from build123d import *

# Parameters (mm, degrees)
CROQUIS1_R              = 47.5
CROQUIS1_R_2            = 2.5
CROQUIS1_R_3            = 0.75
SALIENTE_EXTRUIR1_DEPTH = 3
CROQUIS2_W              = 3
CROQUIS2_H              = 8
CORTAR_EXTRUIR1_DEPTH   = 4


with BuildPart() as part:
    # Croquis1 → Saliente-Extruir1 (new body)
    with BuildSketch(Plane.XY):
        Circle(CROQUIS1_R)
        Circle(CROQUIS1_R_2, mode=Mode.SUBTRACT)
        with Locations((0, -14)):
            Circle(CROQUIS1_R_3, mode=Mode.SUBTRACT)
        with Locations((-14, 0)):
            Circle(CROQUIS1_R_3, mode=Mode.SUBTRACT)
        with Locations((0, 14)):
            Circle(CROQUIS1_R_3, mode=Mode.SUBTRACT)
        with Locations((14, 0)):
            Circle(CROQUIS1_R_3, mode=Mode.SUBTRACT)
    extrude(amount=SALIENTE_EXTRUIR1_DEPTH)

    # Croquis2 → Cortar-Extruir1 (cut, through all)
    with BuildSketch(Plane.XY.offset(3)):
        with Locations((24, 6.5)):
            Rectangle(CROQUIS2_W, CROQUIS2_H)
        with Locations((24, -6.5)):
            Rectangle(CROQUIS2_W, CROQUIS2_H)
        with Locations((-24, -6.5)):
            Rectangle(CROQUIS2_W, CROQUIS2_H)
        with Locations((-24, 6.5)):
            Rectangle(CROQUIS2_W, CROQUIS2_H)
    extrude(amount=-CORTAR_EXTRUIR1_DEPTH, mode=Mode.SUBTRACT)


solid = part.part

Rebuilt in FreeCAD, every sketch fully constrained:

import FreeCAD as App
import Part
import Sketcher
Q = App.Units.Quantity


def add_polygon(sketch, points):
    """Adds a closed chain of lines whose ends are joined by coincident constraints."""
    first, n = sketch.GeometryCount, len(points)
    for a, b in zip(points, points[1:] + points[:1]):
        sketch.addGeometry(Part.LineSegment(App.Vector(*a, 0), App.Vector(*b, 0)), False)
    for i in range(n):
        sketch.addConstraint(Sketcher.Constraint("Coincident", first + i, 2, first + (i + 1) % n, 1))

doc = App.newDocument("Part")
body = doc.addObject("PartDesign::Body", "Body")

# Sketch on XY plane
sketch1 = body.newObject("Sketcher::SketchObject", "Sketch")
sketch1.AttachmentSupport = (doc.getObject("XY_Plane"), [""])
sketch1.MapMode = "FlatFace"
sketch1.addGeometry(Part.Circle(App.Vector(0, 0, 0), App.Vector(0, 0, 1), 47.5), False)
sketch1.addGeometry(Part.Circle(App.Vector(0, -14, 0), App.Vector(0, 0, 1), 0.75), False)
sketch1.addGeometry(Part.Circle(App.Vector(-14, 0, 0), App.Vector(0, 0, 1), 0.75), False)
sketch1.addGeometry(Part.Circle(App.Vector(0, 0, 0), App.Vector(0, 0, 1), 2.5), False)
sketch1.addGeometry(Part.Circle(App.Vector(14, 0, 0), App.Vector(0, 0, 1), 0.75), False)
sketch1.addGeometry(Part.Circle(App.Vector(0, 14, 0), App.Vector(0, 0, 1), 0.75), False)
sketch1.addConstraint(Sketcher.Constraint("Coincident", 0, 3, -1, 1))
sketch1.addConstraint(Sketcher.Constraint("Coincident", 3, 3, -1, 1))
sketch1.addConstraint(Sketcher.Constraint("Equal", 1, 2))
sketch1.addConstraint(Sketcher.Constraint("Equal", 2, 4))
sketch1.addConstraint(Sketcher.Constraint("Equal", 4, 5))
sketch1.addConstraint(Sketcher.Constraint("Symmetric", 2, 3, 4, 3, -1, 1))
sketch1.addConstraint(Sketcher.Constraint("Symmetric", 1, 3, 5, 3, -1, 1))
sketch1.addConstraint(Sketcher.Constraint("PointOnObject", 1, 3, -2))
sketch1.addConstraint(Sketcher.Constraint("PointOnObject", 2, 3, -1))
sketch1.addConstraint(Sketcher.Constraint("Diameter", 0, Q("95 mm")))
sketch1.addConstraint(Sketcher.Constraint("Diameter", 3, Q("5 mm")))
sketch1.addConstraint(Sketcher.Constraint("Diameter", 1, Q("1.5 mm")))
sketch1.addConstraint(Sketcher.Constraint("DistanceY", 1, 3, -1, 1, Q("14 mm")))
sketch1.addConstraint(Sketcher.Constraint("DistanceX", 2, 3, -1, 1, Q("14 mm")))
pad1 = body.newObject("PartDesign::Pad", "Pad")
pad1.Profile = sketch1
pad1.Length = 3

# Sketch on XY plane
sketch2 = body.newObject("Sketcher::SketchObject", "Sketch001")
sketch2.AttachmentSupport = (doc.getObject("XY_Plane"), [""])
sketch2.MapMode = "FlatFace"
sketch2.AttachmentOffset = App.Placement(App.Vector(0, 0, 3), App.Rotation())
add_polygon(sketch2, [(22.5, 10.5), (22.5, 2.5), (25.5, 2.5), (25.5, 10.5)])  # lines 0-3
add_polygon(sketch2, [(22.5, -2.5), (22.5, -10.5), (25.5, -10.5), (25.5, -2.5)])  # lines 4-7
add_polygon(sketch2, [(-25.5, -2.5), (-25.5, -10.5), (-22.5, -10.5), (-22.5, -2.5)])  # lines 8-11
add_polygon(sketch2, [(-25.5, 10.5), (-25.5, 2.5), (-22.5, 2.5), (-22.5, 10.5)])  # lines 12-15
sketch2.addConstraint(Sketcher.Constraint("Vertical", 0))
sketch2.addConstraint(Sketcher.Constraint("Horizontal", 1))
sketch2.addConstraint(Sketcher.Constraint("Vertical", 2))
sketch2.addConstraint(Sketcher.Constraint("Horizontal", 3))
sketch2.addConstraint(Sketcher.Constraint("Vertical", 4))
sketch2.addConstraint(Sketcher.Constraint("Horizontal", 5))
sketch2.addConstraint(Sketcher.Constraint("Vertical", 6))
sketch2.addConstraint(Sketcher.Constraint("Horizontal", 7))
sketch2.addConstraint(Sketcher.Constraint("Vertical", 8))
sketch2.addConstraint(Sketcher.Constraint("Horizontal", 9))
sketch2.addConstraint(Sketcher.Constraint("Vertical", 10))
sketch2.addConstraint(Sketcher.Constraint("Horizontal", 11))
sketch2.addConstraint(Sketcher.Constraint("Vertical", 12))
sketch2.addConstraint(Sketcher.Constraint("Horizontal", 13))
sketch2.addConstraint(Sketcher.Constraint("Vertical", 14))
sketch2.addConstraint(Sketcher.Constraint("Horizontal", 15))
sketch2.addConstraint(Sketcher.Constraint("Symmetric", 2, 2, 8, 2, -1, 1))
sketch2.addConstraint(Sketcher.Constraint("Symmetric", 0, 2, 10, 2, -1, 1))
sketch2.addConstraint(Sketcher.Constraint("Symmetric", 6, 2, 12, 2, -1, 1))
sketch2.addConstraint(Sketcher.Constraint("Symmetric", 4, 2, 14, 2, -1, 1))
sketch2.addConstraint(Sketcher.Constraint("Symmetric", 5, 2, 8, 2, -2))
sketch2.addConstraint(Sketcher.Constraint("Symmetric", 7, 2, 10, 2, -2))
sketch2.addConstraint(Sketcher.Constraint("DistanceX", 1, 1, 1, 2, Q("3 mm")))
sketch2.addConstraint(Sketcher.Constraint("DistanceY", 0, 2, 0, 1, Q("8 mm")))
sketch2.addConstraint(Sketcher.Constraint("DistanceY", 4, 2, 0, 2, Q("13 mm")))
sketch2.addConstraint(Sketcher.Constraint("DistanceX", 8, 2, 4, 2, Q("48 mm")))
pocket1 = body.newObject("PartDesign::Pocket", "Pocket")
pocket1.Profile = sketch2
pocket1.Type = "ThroughAll"

doc.recompute()
